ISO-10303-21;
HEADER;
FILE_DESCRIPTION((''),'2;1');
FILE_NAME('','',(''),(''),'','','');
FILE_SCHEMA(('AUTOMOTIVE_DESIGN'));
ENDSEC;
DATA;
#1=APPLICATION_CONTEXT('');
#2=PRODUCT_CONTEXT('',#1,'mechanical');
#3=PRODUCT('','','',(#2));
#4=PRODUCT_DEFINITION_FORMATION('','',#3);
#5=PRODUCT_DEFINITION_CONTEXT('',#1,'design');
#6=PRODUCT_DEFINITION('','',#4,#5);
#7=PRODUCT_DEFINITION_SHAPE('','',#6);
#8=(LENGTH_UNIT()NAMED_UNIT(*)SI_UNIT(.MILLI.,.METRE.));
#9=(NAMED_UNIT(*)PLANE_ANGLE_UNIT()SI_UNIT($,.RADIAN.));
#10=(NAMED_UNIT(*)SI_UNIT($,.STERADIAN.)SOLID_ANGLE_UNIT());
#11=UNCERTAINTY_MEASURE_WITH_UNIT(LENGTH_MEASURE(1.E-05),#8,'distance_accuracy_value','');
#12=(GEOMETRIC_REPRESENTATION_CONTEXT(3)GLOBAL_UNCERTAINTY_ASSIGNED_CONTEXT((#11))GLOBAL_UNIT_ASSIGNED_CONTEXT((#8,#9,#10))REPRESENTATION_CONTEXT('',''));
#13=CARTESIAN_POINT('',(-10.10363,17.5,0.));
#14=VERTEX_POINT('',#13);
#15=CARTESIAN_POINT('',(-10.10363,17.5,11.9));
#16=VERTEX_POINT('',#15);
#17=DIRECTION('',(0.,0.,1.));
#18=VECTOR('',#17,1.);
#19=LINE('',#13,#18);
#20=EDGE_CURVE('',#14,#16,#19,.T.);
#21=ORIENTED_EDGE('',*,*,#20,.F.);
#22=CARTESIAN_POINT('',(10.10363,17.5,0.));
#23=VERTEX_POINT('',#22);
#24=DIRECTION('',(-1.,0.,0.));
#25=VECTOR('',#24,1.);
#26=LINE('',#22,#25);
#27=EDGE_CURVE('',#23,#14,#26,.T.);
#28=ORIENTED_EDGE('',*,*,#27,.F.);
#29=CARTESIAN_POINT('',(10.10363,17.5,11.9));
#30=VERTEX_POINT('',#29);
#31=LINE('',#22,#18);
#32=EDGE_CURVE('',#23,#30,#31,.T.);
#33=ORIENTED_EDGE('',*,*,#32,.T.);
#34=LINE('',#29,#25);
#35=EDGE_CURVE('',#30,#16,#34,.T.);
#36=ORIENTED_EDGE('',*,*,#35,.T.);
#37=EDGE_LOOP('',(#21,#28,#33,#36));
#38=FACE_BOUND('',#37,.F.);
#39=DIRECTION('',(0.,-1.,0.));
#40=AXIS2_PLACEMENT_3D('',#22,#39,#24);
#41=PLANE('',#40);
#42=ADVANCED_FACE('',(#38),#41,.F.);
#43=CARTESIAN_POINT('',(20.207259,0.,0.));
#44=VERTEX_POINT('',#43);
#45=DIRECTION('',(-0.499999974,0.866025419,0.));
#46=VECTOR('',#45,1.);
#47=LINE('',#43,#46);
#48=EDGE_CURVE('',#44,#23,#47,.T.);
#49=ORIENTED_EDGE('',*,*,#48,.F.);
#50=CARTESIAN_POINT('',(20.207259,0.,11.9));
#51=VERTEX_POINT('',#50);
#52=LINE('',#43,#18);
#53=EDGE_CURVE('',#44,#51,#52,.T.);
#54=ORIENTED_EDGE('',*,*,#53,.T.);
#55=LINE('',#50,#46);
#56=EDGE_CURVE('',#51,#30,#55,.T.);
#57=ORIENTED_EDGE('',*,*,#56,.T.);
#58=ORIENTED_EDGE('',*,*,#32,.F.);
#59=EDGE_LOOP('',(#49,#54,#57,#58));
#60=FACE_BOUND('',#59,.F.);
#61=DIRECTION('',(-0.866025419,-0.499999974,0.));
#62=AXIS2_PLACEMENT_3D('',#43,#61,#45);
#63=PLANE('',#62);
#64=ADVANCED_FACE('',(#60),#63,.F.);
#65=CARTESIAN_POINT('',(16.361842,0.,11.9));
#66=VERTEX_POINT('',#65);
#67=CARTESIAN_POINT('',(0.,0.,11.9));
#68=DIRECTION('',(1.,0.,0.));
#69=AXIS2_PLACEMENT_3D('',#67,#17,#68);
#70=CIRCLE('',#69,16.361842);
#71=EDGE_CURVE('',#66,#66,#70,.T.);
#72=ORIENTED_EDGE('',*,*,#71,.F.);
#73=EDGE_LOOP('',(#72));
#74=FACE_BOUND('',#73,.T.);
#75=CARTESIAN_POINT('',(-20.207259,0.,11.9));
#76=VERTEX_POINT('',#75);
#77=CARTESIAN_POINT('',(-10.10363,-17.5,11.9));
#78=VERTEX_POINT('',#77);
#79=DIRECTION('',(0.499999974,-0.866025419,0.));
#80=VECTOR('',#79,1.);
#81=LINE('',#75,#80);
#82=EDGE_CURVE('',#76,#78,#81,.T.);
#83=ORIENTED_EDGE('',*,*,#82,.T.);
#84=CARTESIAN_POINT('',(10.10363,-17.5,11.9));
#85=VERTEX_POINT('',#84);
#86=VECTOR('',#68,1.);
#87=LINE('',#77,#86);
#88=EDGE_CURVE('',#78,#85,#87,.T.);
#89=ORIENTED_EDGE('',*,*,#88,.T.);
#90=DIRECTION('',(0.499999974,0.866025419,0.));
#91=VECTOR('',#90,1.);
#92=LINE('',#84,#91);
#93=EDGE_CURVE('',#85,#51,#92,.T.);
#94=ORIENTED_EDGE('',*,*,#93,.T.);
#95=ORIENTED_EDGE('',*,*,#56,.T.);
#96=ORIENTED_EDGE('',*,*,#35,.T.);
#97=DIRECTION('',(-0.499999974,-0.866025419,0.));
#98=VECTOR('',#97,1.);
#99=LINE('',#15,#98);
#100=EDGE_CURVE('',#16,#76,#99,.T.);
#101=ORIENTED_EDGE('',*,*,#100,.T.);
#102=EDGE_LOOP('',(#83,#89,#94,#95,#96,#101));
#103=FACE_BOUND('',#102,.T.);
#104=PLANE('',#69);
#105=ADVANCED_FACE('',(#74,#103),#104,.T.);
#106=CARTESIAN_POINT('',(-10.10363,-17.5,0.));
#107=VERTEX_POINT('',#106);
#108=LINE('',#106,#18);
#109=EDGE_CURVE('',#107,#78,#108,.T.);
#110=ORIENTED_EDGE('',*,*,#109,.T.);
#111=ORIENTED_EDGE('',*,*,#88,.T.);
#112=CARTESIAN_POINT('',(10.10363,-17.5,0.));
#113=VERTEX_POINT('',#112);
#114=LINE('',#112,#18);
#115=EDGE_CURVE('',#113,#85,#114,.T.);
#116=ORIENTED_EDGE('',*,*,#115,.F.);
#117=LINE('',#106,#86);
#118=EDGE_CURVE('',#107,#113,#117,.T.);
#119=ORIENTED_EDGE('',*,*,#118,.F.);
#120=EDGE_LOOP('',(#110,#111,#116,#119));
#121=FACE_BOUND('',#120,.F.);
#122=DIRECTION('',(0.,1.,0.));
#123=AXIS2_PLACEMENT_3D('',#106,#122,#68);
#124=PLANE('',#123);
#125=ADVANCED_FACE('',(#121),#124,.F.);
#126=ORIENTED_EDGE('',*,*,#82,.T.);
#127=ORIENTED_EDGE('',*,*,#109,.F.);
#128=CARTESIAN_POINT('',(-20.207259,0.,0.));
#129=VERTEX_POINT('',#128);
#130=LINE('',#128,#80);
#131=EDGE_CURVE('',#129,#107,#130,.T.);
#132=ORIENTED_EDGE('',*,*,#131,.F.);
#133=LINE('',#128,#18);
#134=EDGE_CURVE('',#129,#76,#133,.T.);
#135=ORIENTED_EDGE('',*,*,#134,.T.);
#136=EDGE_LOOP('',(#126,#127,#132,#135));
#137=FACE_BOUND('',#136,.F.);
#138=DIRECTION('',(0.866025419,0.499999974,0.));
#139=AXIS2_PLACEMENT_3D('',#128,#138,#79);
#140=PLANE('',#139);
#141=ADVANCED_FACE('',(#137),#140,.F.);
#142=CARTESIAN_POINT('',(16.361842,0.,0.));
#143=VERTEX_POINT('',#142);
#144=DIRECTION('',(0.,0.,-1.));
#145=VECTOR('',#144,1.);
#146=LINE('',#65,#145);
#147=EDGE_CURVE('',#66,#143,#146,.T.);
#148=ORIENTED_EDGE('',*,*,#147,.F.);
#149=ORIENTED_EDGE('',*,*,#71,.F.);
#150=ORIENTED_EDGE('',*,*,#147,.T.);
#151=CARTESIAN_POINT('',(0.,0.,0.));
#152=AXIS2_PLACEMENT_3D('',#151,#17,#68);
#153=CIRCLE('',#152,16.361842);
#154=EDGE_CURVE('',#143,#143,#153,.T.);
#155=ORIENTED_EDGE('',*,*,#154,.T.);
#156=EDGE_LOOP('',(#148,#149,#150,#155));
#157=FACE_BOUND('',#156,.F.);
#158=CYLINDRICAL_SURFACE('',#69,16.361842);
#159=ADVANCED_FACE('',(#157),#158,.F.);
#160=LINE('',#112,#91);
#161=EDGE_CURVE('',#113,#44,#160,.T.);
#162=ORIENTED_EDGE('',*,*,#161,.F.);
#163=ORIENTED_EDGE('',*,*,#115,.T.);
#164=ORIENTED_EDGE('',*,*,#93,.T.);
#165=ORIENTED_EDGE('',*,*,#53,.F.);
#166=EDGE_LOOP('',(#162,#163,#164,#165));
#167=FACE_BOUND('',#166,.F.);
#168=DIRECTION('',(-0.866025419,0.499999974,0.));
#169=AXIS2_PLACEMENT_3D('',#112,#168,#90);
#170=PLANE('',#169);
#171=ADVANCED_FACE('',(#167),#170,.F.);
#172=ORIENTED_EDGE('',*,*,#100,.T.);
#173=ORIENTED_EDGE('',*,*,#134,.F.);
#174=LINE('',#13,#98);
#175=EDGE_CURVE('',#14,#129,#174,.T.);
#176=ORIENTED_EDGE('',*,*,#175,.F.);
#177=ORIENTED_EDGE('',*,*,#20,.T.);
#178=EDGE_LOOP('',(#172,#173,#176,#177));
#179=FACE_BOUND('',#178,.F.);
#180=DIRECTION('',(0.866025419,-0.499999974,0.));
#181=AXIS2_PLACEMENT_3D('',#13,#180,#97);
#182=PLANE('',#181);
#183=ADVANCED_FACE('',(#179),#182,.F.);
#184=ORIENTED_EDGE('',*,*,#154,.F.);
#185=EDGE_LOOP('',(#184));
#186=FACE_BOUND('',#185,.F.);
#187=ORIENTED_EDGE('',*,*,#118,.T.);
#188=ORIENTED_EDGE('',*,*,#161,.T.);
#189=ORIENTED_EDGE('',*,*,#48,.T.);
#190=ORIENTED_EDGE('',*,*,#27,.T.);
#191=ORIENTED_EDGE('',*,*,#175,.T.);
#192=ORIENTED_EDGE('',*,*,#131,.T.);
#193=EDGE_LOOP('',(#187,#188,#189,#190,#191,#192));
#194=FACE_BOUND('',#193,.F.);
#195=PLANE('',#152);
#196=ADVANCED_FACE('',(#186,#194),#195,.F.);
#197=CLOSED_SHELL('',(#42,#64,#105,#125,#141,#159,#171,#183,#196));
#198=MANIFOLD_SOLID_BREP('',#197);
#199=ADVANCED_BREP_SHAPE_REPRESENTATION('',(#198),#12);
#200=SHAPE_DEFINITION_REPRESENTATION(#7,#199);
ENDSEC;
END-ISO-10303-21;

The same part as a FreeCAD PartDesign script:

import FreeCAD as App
import Part
import Sketcher
from FreeCAD import Vector
Q = App.Units.Quantity

doc = App.newDocument("Part")
body = doc.addObject("PartDesign::Body", "Body")

sketch1 = body.newObject("Sketcher::SketchObject", "Sketch")
sketch1.AttachmentSupport = (doc.getObject("XY_Plane"), [""])
sketch1.MapMode = "FlatFace"
sketch1.addGeometry([
    Part.LineSegment(Vector(10.10363, -17.5, 0), Vector(20.207259, 0, 0)),
    Part.LineSegment(Vector(20.207259, 0, 0), Vector(10.10363, 17.5, 0)),
    Part.LineSegment(Vector(10.10363, 17.5, 0), Vector(-10.10363, 17.5, 0)),
    Part.LineSegment(Vector(-10.10363, 17.5, 0), Vector(-20.207259, 0, 0)),
    Part.LineSegment(Vector(-20.207259, 0, 0), Vector(-10.10363, -17.5, 0)),
    Part.LineSegment(Vector(-10.10363, -17.5, 0), Vector(10.10363, -17.5, 0)),
], False)
sketch1.addConstraint([
    Sketcher.Constraint("Coincident", 0, 2, 1, 1),
    Sketcher.Constraint("Coincident", 1, 2, 2, 1),
    Sketcher.Constraint("Coincident", 2, 2, 3, 1),
    Sketcher.Constraint("Coincident", 3, 2, 4, 1),
    Sketcher.Constraint("Coincident", 4, 2, 5, 1),
    Sketcher.Constraint("Coincident", 5, 2, 0, 1),
    Sketcher.Constraint("Horizontal", 2),
    Sketcher.Constraint("Horizontal", 5),
    Sketcher.Constraint("Symmetric", 0, 2, 3, 2, -1, 1),
    Sketcher.Constraint("Symmetric", 1, 2, 4, 2, -1, 1),
    Sketcher.Constraint("PointOnObject", 0, 2, -1),
    Sketcher.Constraint("Parallel", 0, 3),
    Sketcher.Constraint("Vertical", 2, 2, 4, 2),
    Sketcher.Constraint("Angle", 0, Q("60.000002 deg")),
    Sketcher.Constraint("DistanceY", 4, 2, 2, 2, Q("35 mm")),
    Sketcher.Constraint("DistanceX", 2, 2, 2, 1, Q("20.20726 mm")),
])
pad1 = body.newObject("PartDesign::Pad", "Pad")
pad1.Profile = sketch1
pad1.Length = 11.9

sketch2 = body.newObject("Sketcher::SketchObject", "Sketch001")
sketch2.AttachmentSupport = (doc.getObject("XY_Plane"), [""])
sketch2.MapMode = "FlatFace"
sketch2.AttachmentOffset = App.Placement(Vector(0, 0, 11.9), App.Rotation())
sketch2.addGeometry(Part.Circle(Vector(0, 0, 0), Vector(0, 0, 1), 16.361842), False)
sketch2.addConstraint([
    Sketcher.Constraint("Coincident", 0, 3, -1, 1),
    Sketcher.Constraint("Diameter", 0, Q("32.723684 mm")),
])
pocket1 = body.newObject("PartDesign::Pocket", "Pocket")
pocket1.Profile = sketch2
pocket1.Type = "ThroughAll"

doc.recompute()
